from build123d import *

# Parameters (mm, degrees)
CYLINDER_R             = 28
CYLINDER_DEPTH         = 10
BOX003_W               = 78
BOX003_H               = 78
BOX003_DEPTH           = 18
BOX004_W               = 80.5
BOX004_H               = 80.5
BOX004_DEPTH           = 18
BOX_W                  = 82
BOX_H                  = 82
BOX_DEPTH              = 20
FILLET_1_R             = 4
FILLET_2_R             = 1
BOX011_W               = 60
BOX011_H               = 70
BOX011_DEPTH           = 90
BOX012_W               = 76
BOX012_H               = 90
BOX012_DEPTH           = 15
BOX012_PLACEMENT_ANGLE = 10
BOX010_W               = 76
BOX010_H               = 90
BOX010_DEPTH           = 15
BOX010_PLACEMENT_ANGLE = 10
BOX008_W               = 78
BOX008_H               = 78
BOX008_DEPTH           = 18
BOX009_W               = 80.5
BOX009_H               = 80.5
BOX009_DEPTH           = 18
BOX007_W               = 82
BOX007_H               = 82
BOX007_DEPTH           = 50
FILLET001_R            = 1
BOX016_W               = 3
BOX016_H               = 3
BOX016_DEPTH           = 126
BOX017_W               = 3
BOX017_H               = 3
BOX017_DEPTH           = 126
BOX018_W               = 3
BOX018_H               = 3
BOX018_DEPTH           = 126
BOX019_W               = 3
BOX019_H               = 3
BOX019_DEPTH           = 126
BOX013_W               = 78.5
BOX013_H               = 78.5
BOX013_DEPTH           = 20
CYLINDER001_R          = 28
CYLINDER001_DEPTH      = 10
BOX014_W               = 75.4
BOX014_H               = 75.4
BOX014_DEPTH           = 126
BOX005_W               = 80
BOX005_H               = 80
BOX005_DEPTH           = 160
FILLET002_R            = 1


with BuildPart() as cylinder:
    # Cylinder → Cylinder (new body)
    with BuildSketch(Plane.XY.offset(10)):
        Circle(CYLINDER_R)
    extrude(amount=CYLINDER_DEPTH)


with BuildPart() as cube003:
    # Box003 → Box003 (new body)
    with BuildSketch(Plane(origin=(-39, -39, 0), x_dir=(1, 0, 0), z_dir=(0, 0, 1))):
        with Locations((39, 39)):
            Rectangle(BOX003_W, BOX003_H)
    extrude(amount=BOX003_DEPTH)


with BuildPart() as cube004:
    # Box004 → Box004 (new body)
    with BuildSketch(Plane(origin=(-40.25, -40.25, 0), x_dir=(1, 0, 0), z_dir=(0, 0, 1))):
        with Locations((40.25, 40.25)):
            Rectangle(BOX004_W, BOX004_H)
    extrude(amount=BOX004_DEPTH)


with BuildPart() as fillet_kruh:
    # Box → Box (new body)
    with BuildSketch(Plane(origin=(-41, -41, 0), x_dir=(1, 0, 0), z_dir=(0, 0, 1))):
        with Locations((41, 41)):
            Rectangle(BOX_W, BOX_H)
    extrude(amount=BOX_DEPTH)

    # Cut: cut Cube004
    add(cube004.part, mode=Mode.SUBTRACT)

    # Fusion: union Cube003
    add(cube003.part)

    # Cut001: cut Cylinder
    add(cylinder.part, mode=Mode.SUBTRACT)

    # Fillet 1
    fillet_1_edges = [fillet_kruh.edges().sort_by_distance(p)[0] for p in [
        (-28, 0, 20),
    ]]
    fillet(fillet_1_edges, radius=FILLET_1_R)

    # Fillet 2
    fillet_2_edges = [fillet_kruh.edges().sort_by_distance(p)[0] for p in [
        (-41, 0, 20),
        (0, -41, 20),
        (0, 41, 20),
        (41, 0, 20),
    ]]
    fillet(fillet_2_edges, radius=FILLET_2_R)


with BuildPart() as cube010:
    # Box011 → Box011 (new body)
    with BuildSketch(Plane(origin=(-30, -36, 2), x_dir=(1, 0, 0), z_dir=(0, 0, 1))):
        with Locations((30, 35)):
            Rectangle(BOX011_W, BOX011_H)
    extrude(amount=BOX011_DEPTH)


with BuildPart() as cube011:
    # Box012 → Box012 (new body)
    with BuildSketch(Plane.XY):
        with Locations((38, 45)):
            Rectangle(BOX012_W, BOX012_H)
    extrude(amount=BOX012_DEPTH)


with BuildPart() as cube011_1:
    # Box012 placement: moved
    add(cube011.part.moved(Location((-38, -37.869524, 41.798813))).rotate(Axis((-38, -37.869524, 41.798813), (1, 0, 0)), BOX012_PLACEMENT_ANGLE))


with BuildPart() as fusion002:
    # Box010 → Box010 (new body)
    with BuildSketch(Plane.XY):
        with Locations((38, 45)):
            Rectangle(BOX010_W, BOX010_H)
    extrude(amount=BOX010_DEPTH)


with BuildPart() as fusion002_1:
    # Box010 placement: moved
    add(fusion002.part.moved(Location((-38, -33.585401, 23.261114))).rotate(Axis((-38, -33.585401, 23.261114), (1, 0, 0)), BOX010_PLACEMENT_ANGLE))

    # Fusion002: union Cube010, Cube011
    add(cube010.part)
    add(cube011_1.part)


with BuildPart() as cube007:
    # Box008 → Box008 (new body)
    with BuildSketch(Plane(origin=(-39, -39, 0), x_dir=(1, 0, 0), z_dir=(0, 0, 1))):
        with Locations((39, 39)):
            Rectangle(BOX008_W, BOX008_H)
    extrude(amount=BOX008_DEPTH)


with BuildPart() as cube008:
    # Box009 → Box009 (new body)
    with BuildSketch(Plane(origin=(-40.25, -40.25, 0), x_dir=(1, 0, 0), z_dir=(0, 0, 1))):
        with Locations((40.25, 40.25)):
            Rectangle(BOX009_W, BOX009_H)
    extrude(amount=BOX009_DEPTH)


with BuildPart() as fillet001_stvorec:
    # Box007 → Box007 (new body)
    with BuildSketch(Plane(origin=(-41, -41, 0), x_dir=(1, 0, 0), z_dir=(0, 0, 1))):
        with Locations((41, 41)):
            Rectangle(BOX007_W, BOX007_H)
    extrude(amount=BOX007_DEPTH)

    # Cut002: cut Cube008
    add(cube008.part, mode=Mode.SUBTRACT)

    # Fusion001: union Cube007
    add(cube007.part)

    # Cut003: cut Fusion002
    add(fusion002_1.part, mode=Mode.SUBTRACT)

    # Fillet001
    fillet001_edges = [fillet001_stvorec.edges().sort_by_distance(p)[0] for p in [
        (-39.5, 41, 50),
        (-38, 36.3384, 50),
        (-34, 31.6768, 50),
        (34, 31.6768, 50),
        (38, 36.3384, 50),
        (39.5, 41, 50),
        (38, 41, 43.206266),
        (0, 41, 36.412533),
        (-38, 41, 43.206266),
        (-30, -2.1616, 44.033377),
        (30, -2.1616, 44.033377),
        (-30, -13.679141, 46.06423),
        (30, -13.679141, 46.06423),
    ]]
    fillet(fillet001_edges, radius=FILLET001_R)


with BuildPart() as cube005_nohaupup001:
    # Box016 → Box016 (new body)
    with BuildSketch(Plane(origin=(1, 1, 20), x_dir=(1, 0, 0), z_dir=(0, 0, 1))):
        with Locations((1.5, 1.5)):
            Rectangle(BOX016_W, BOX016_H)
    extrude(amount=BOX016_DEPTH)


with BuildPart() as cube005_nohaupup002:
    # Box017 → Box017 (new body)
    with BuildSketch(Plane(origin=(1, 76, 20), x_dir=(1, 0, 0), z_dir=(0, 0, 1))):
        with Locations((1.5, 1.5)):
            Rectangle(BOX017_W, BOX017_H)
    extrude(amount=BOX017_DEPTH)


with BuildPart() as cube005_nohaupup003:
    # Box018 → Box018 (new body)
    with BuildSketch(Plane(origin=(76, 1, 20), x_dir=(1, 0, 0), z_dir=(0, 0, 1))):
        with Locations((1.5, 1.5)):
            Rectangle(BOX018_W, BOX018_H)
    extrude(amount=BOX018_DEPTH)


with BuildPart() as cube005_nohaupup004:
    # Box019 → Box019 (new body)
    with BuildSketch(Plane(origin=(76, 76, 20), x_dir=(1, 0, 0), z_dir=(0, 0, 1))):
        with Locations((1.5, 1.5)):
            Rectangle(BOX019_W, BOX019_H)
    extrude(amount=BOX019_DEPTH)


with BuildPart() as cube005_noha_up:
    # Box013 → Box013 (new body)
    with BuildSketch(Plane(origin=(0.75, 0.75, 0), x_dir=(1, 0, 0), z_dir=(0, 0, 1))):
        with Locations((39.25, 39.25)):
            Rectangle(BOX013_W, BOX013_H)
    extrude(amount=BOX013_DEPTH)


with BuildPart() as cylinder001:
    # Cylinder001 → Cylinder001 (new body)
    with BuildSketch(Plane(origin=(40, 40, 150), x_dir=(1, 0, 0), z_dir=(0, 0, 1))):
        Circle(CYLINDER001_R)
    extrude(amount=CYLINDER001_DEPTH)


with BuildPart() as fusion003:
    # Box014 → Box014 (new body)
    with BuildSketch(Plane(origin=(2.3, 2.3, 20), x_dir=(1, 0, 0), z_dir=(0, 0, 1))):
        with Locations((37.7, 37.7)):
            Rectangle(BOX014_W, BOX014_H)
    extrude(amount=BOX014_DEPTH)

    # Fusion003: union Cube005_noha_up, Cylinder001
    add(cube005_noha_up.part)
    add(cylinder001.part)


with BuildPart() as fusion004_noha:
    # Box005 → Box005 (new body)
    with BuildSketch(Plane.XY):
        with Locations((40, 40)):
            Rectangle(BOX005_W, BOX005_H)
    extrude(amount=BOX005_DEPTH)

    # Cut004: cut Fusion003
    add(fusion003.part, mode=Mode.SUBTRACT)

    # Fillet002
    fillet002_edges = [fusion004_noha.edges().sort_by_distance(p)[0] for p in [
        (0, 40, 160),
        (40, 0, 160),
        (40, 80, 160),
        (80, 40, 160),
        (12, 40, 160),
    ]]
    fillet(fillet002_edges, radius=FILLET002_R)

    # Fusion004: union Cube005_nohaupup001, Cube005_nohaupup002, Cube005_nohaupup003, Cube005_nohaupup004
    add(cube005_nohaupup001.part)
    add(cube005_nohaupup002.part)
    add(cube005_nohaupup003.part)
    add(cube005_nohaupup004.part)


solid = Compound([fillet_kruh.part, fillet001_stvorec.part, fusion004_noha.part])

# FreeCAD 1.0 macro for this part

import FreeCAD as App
import Part
import Sketcher
from FreeCAD import Vector
Q = App.Units.Quantity


def edges_at(feature, points):
    """Names of the edges that pass closest to the given points."""
    edges = feature.Shape.Edges
    near = lambda p: min(range(len(edges)), key=lambda i: edges[i].distToShape(Part.Vertex(*p))[0])
    return sorted({f"Edge{near(p) + 1}" for p in points})

doc = App.newDocument("Part")
body = doc.addObject("PartDesign::Body", "Body")

# Sketch on XY plane
sketch1 = body.newObject("Sketcher::SketchObject", "Sketch")
sketch1.AttachmentSupport = (doc.getObject("XY_Plane"), [""])
sketch1.MapMode = "FlatFace"
sketch1.AttachmentOffset = App.Placement(Vector(0, 0, 10), App.Rotation())
sketch1.addGeometry(Part.Circle(Vector(0, 0, 0), Vector(0, 0, 1), 28), False)
sketch1.addConstraint([
    Sketcher.Constraint("Coincident", 0, 3, -1, 1),
    Sketcher.Constraint("Diameter", 0, Q("56 mm")),
])
pad1 = body.newObject("PartDesign::Pad", "Pad")
pad1.Profile = sketch1
pad1.Length = 10
body2 = doc.addObject("PartDesign::Body", "Body001")

# Sketch on XY plane
sketch2 = body2.newObject("Sketcher::SketchObject", "Sketch001")
sketch2.AttachmentSupport = (doc.getObject("XY_Plane001"), [""])
sketch2.MapMode = "FlatFace"
sketch2.addGeometry([
    Part.LineSegment(Vector(-39, 39, 0), Vector(-39, -39, 0)),
    Part.LineSegment(Vector(-39, -39, 0), Vector(39, -39, 0)),
    Part.LineSegment(Vector(39, -39, 0), Vector(39, 39, 0)),
    Part.LineSegment(Vector(39, 39, 0), Vector(-39, 39, 0)),
], False)
sketch2.addConstraint([
    Sketcher.Constraint("Coincident", 0, 2, 1, 1),
    Sketcher.Constraint("Coincident", 1, 2, 2, 1),
    Sketcher.Constraint("Coincident", 2, 2, 3, 1),
    Sketcher.Constraint("Coincident", 3, 2, 0, 1),
    Sketcher.Constraint("Vertical", 0),
    Sketcher.Constraint("Horizontal", 1),
    Sketcher.Constraint("Vertical", 2),
    Sketcher.Constraint("Horizontal", 3),
    Sketcher.Constraint("Symmetric", 0, 2, 2, 2, -1, 1),
    Sketcher.Constraint("Equal", 3, 0),
    Sketcher.Constraint("DistanceX", 1, 1, 1, 2, Q("78 mm")),
])
pad2 = body2.newObject("PartDesign::Pad", "Pad001")
pad2.Profile = sketch2
pad2.Length = 18
body3 = doc.addObject("PartDesign::Body", "Body002")

# Sketch on XY plane
sketch3 = body3.newObject("Sketcher::SketchObject", "Sketch002")
sketch3.AttachmentSupport = (doc.getObject("XY_Plane002"), [""])
sketch3.MapMode = "FlatFace"
sketch3.addGeometry([
    Part.LineSegment(Vector(-40.25, 40.25, 0), Vector(-40.25, -40.25, 0)),
    Part.LineSegment(Vector(-40.25, -40.25, 0), Vector(40.25, -40.25, 0)),
    Part.LineSegment(Vector(40.25, -40.25, 0), Vector(40.25, 40.25, 0)),
    Part.LineSegment(Vector(40.25, 40.25, 0), Vector(-40.25, 40.25, 0)),
], False)
sketch3.addConstraint([
    Sketcher.Constraint("Coincident", 0, 2, 1, 1),
    Sketcher.Constraint("Coincident", 1, 2, 2, 1),
    Sketcher.Constraint("Coincident", 2, 2, 3, 1),
    Sketcher.Constraint("Coincident", 3, 2, 0, 1),
    Sketcher.Constraint("Vertical", 0),
    Sketcher.Constraint("Horizontal", 1),
    Sketcher.Constraint("Vertical", 2),
    Sketcher.Constraint("Horizontal", 3),
    Sketcher.Constraint("Symmetric", 0, 2, 2, 2, -1, 1),
    Sketcher.Constraint("Equal", 3, 0),
    Sketcher.Constraint("DistanceX", 1, 1, 1, 2, Q("80.5 mm")),
])
pad3 = body3.newObject("PartDesign::Pad", "Pad002")
pad3.Profile = sketch3
pad3.Length = 18
body4 = doc.addObject("PartDesign::Body", "Body003")

# Sketch on XY plane
sketch4 = body4.newObject("Sketcher::SketchObject", "Sketch003")
sketch4.AttachmentSupport = (doc.getObject("XY_Plane003"), [""])
sketch4.MapMode = "FlatFace"
sketch4.addGeometry([
    Part.LineSegment(Vector(-41, 41, 0), Vector(-41, -41, 0)),
    Part.LineSegment(Vector(-41, -41, 0), Vector(41, -41, 0)),
    Part.LineSegment(Vector(41, -41, 0), Vector(41, 41, 0)),
    Part.LineSegment(Vector(41, 41, 0), Vector(-41, 41, 0)),
], False)
sketch4.addConstraint([
    Sketcher.Constraint("Coincident", 0, 2, 1, 1),
    Sketcher.Constraint("Coincident", 1, 2, 2, 1),
    Sketcher.Constraint("Coincident", 2, 2, 3, 1),
    Sketcher.Constraint("Coincident", 3, 2, 0, 1),
    Sketcher.Constraint("Vertical", 0),
    Sketcher.Constraint("Horizontal", 1),
    Sketcher.Constraint("Vertical", 2),
    Sketcher.Constraint("Horizontal", 3),
    Sketcher.Constraint("Symmetric", 0, 2, 2, 2, -1, 1),
    Sketcher.Constraint("Equal", 3, 0),
    Sketcher.Constraint("DistanceX", 1, 1, 1, 2, Q("82 mm")),
])
pad4 = body4.newObject("PartDesign::Pad", "Pad003")
pad4.Profile = sketch4
pad4.Length = 20
doc.recompute()

boolean = body4.newObject("PartDesign::Boolean", "Boolean")
boolean.Type = "Cut"
boolean.addObjects([body3])
doc.recompute()

boolean2 = body4.newObject("PartDesign::Boolean", "Boolean001")
boolean2.Type = "Fuse"
boolean2.addObjects([body2])
doc.recompute()

boolean3 = body4.newObject("PartDesign::Boolean", "Boolean002")
boolean3.Type = "Cut"
boolean3.addObjects([body])
doc.recompute()

fillet = body4.newObject("PartDesign::Fillet", "Fillet")
fillet.Base = (boolean3, edges_at(boolean3, [(-28, 0, 20)]))
fillet.Radius = 4
doc.recompute()

fillet2 = body4.newObject("PartDesign::Fillet", "Fillet001")
fillet2.Base = (fillet, edges_at(fillet, [
    (-41, 0, 20),
    (0, -41, 20),
    (0, 41, 20),
    (41, 0, 20),
]))
fillet2.Radius = 1
body5 = doc.addObject("PartDesign::Body", "Body004")

# Sketch on XY plane
sketch5 = body5.newObject("Sketcher::SketchObject", "Sketch004")
sketch5.AttachmentSupport = (doc.getObject("XY_Plane004"), [""])
sketch5.MapMode = "FlatFace"
sketch5.AttachmentOffset = App.Placement(Vector(0, 0, 2), App.Rotation())
sketch5.addGeometry([
    Part.LineSegment(Vector(-30, 34, 0), Vector(-30, -36, 0)),
    Part.LineSegment(Vector(-30, -36, 0), Vector(30, -36, 0)),
    Part.LineSegment(Vector(30, -36, 0), Vector(30, 34, 0)),
    Part.LineSegment(Vector(30, 34, 0), Vector(-30, 34, 0)),
], False)
sketch5.addConstraint([
    Sketcher.Constraint("Coincident", 0, 2, 1, 1),
    Sketcher.Constraint("Coincident", 1, 2, 2, 1),
    Sketcher.Constraint("Coincident", 2, 2, 3, 1),
    Sketcher.Constraint("Coincident", 3, 2, 0, 1),
    Sketcher.Constraint("Vertical", 0),
    Sketcher.Constraint("Horizontal", 1),
    Sketcher.Constraint("Vertical", 2),
    Sketcher.Constraint("Horizontal", 3),
    Sketcher.Constraint("DistanceX", 1, 1, 1, 2, Q("60 mm")),
    Sketcher.Constraint("DistanceY", 0, 2, 0, 1, Q("70 mm")),
    Sketcher.Constraint("DistanceX", 0, 2, -1, 1, Q("30 mm")),
    Sketcher.Constraint("DistanceY", 0, 2, -1, 1, Q("36 mm")),
])
pad5 = body5.newObject("PartDesign::Pad", "Pad004")
pad5.Profile = sketch5
pad5.Length = 90
body6 = doc.addObject("PartDesign::Body", "Body005")

# Sketch on XY plane
sketch6 = body6.newObject("Sketcher::SketchObject", "Sketch005")
sketch6.AttachmentSupport = (doc.getObject("XY_Plane005"), [""])
sketch6.MapMode = "FlatFace"
sketch6.addGeometry([
    Part.LineSegment(Vector(0, 90, 0), Vector(0, 0, 0)),
    Part.LineSegment(Vector(0, 0, 0), Vector(76, 0, 0)),
    Part.LineSegment(Vector(76, 0, 0), Vector(76, 90, 0)),
    Part.LineSegment(Vector(76, 90, 0), Vector(0, 90, 0)),
], False)
sketch6.addConstraint([
    Sketcher.Constraint("Coincident", 0, 2, 1, 1),
    Sketcher.Constraint("Coincident", 1, 2, 2, 1),
    Sketcher.Constraint("Coincident", 2, 2, 3, 1),
    Sketcher.Constraint("Coincident", 3, 2, 0, 1),
    Sketcher.Constraint("Vertical", 0),
    Sketcher.Constraint("Horizontal", 1),
    Sketcher.Constraint("Vertical", 2),
    Sketcher.Constraint("Horizontal", 3),
    Sketcher.Constraint("Coincident", 0, 2, -1, 1),
    Sketcher.Constraint("DistanceX", 1, 1, 1, 2, Q("76 mm")),
    Sketcher.Constraint("DistanceY", 0, 2, 0, 1, Q("90 mm")),
])
pad6 = body6.newObject("PartDesign::Pad", "Pad005")
pad6.Profile = sketch6
pad6.Length = 15
body7 = doc.addObject("PartDesign::Body", "Body006")
doc.recompute()

body6.Placement = App.Placement(Vector(-38, -37.869524, 41.798813), App.Rotation(Vector(1, 0, 0), 10))
boolean4 = body7.newObject("PartDesign::Boolean", "Boolean003")
boolean4.Type = "Fuse"
boolean4.addObjects([body6])
body8 = doc.addObject("PartDesign::Body", "Body007")

# Sketch on XY plane
sketch7 = body8.newObject("Sketcher::SketchObject", "Sketch006")
sketch7.AttachmentSupport = (doc.getObject("XY_Plane007"), [""])
sketch7.MapMode = "FlatFace"
sketch7.addGeometry([
    Part.LineSegment(Vector(0, 90, 0), Vector(0, 0, 0)),
    Part.LineSegment(Vector(0, 0, 0), Vector(76, 0, 0)),
    Part.LineSegment(Vector(76, 0, 0), Vector(76, 90, 0)),
    Part.LineSegment(Vector(76, 90, 0), Vector(0, 90, 0)),
], False)
sketch7.addConstraint([
    Sketcher.Constraint("Coincident", 0, 2, 1, 1),
    Sketcher.Constraint("Coincident", 1, 2, 2, 1),
    Sketcher.Constraint("Coincident", 2, 2, 3, 1),
    Sketcher.Constraint("Coincident", 3, 2, 0, 1),
    Sketcher.Constraint("Vertical", 0),
    Sketcher.Constraint("Horizontal", 1),
    Sketcher.Constraint("Vertical", 2),
    Sketcher.Constraint("Horizontal", 3),
    Sketcher.Constraint("Coincident", 0, 2, -1, 1),
    Sketcher.Constraint("DistanceX", 1, 1, 1, 2, Q("76 mm")),
    Sketcher.Constraint("DistanceY", 0, 2, 0, 1, Q("90 mm")),
])
pad7 = body8.newObject("PartDesign::Pad", "Pad006")
pad7.Profile = sketch7
pad7.Length = 15
body9 = doc.addObject("PartDesign::Body", "Body008")
doc.recompute()

body8.Placement = App.Placement(Vector(-38, -33.585401, 23.261114), App.Rotation(Vector(1, 0, 0), 10))
boolean5 = body9.newObject("PartDesign::Boolean", "Boolean004")
boolean5.Type = "Fuse"
boolean5.addObjects([body8])
doc.recompute()

boolean6 = body9.newObject("PartDesign::Boolean", "Boolean005")
boolean6.Type = "Fuse"
boolean6.addObjects([body5])
doc.recompute()

boolean7 = body9.newObject("PartDesign::Boolean", "Boolean006")
boolean7.Type = "Fuse"
boolean7.addObjects([body7])
body10 = doc.addObject("PartDesign::Body", "Body009")

# Sketch on XY plane
sketch8 = body10.newObject("Sketcher::SketchObject", "Sketch007")
sketch8.AttachmentSupport = (doc.getObject("XY_Plane009"), [""])
sketch8.MapMode = "FlatFace"
sketch8.addGeometry([
    Part.LineSegment(Vector(-39, 39, 0), Vector(-39, -39, 0)),
    Part.LineSegment(Vector(-39, -39, 0), Vector(39, -39, 0)),
    Part.LineSegment(Vector(39, -39, 0), Vector(39, 39, 0)),
    Part.LineSegment(Vector(39, 39, 0), Vector(-39, 39, 0)),
], False)
sketch8.addConstraint([
    Sketcher.Constraint("Coincident", 0, 2, 1, 1),
    Sketcher.Constraint("Coincident", 1, 2, 2, 1),
    Sketcher.Constraint("Coincident", 2, 2, 3, 1),
    Sketcher.Constraint("Coincident", 3, 2, 0, 1),
    Sketcher.Constraint("Vertical", 0),
    Sketcher.Constraint("Horizontal", 1),
    Sketcher.Constraint("Vertical", 2),
    Sketcher.Constraint("Horizontal", 3),
    Sketcher.Constraint("Symmetric", 0, 2, 2, 2, -1, 1),
    Sketcher.Constraint("Equal", 3, 0),
    Sketcher.Constraint("DistanceX", 1, 1, 1, 2, Q("78 mm")),
])
pad8 = body10.newObject("PartDesign::Pad", "Pad007")
pad8.Profile = sketch8
pad8.Length = 18
body11 = doc.addObject("PartDesign::Body", "Body010")

# Sketch on XY plane
sketch9 = body11.newObject("Sketcher::SketchObject", "Sketch008")
sketch9.AttachmentSupport = (doc.getObject("XY_Plane010"), [""])
sketch9.MapMode = "FlatFace"
sketch9.addGeometry([
    Part.LineSegment(Vector(-40.25, 40.25, 0), Vector(-40.25, -40.25, 0)),
    Part.LineSegment(Vector(-40.25, -40.25, 0), Vector(40.25, -40.25, 0)),
    Part.LineSegment(Vector(40.25, -40.25, 0), Vector(40.25, 40.25, 0)),
    Part.LineSegment(Vector(40.25, 40.25, 0), Vector(-40.25, 40.25, 0)),
], False)
sketch9.addConstraint([
    Sketcher.Constraint("Coincident", 0, 2, 1, 1),
    Sketcher.Constraint("Coincident", 1, 2, 2, 1),
    Sketcher.Constraint("Coincident", 2, 2, 3, 1),
    Sketcher.Constraint("Coincident", 3, 2, 0, 1),
    Sketcher.Constraint("Vertical", 0),
    Sketcher.Constraint("Horizontal", 1),
    Sketcher.Constraint("Vertical", 2),
    Sketcher.Constraint("Horizontal", 3),
    Sketcher.Constraint("Symmetric", 0, 2, 2, 2, -1, 1),
    Sketcher.Constraint("Equal", 3, 0),
    Sketcher.Constraint("DistanceX", 1, 1, 1, 2, Q("80.5 mm")),
])
pad9 = body11.newObject("PartDesign::Pad", "Pad008")
pad9.Profile = sketch9
pad9.Length = 18
body12 = doc.addObject("PartDesign::Body", "Body011")

# Sketch on XY plane
sketch10 = body12.newObject("Sketcher::SketchObject", "Sketch009")
sketch10.AttachmentSupport = (doc.getObject("XY_Plane011"), [""])
sketch10.MapMode = "FlatFace"
sketch10.addGeometry([
    Part.LineSegment(Vector(-41, 41, 0), Vector(-41, -41, 0)),
    Part.LineSegment(Vector(-41, -41, 0), Vector(41, -41, 0)),
    Part.LineSegment(Vector(41, -41, 0), Vector(41, 41, 0)),
    Part.LineSegment(Vector(41, 41, 0), Vector(-41, 41, 0)),
], False)
sketch10.addConstraint([
    Sketcher.Constraint("Coincident", 0, 2, 1, 1),
    Sketcher.Constraint("Coincident", 1, 2, 2, 1),
    Sketcher.Constraint("Coincident", 2, 2, 3, 1),
    Sketcher.Constraint("Coincident", 3, 2, 0, 1),
    Sketcher.Constraint("Vertical", 0),
    Sketcher.Constraint("Horizontal", 1),
    Sketcher.Constraint("Vertical", 2),
    Sketcher.Constraint("Horizontal", 3),
    Sketcher.Constraint("Symmetric", 0, 2, 2, 2, -1, 1),
    Sketcher.Constraint("Equal", 3, 0),
    Sketcher.Constraint("DistanceX", 1, 1, 1, 2, Q("82 mm")),
])
pad10 = body12.newObject("PartDesign::Pad", "Pad009")
pad10.Profile = sketch10
pad10.Length = 50
doc.recompute()

boolean8 = body12.newObject("PartDesign::Boolean", "Boolean007")
boolean8.Type = "Cut"
boolean8.addObjects([body11])
doc.recompute()

boolean9 = body12.newObject("PartDesign::Boolean", "Boolean008")
boolean9.Type = "Fuse"
boolean9.addObjects([body10])
doc.recompute()

boolean10 = body12.newObject("PartDesign::Boolean", "Boolean009")
boolean10.Type = "Cut"
boolean10.addObjects([body9])
doc.recompute()

fillet3 = body12.newObject("PartDesign::Fillet", "Fillet002")
fillet3.Base = (boolean10, edges_at(boolean10, [
    (-39.5, 41, 50),
    (-38, 36.338, 50),
    (-34, 31.677, 50),
    (34, 31.677, 50),
    (38, 36.338, 50),
    (39.5, 41, 50),
    (38, 41, 43.206),
    (0, 41, 36.413),
    (-38, 41, 43.206),
    (-30, -2.162, 44.033),
    (30, -2.162, 44.033),
    (-30, -13.679, 46.064),
    (30, -13.679, 46.064),
]))
fillet3.Radius = 1
body13 = doc.addObject("PartDesign::Body", "Body012")

# Sketch on XY plane
sketch11 = body13.newObject("Sketcher::SketchObject", "Sketch010")
sketch11.AttachmentSupport = (doc.getObject("XY_Plane012"), [""])
sketch11.MapMode = "FlatFace"
sketch11.AttachmentOffset = App.Placement(Vector(0, 0, 20), App.Rotation())
sketch11.addGeometry([
    Part.LineSegment(Vector(1, 4, 0), Vector(1, 1, 0)),
    Part.LineSegment(Vector(1, 1, 0), Vector(4, 1, 0)),
    Part.LineSegment(Vector(4, 1, 0), Vector(4, 4, 0)),
    Part.LineSegment(Vector(4, 4, 0), Vector(1, 4, 0)),
], False)
sketch11.addConstraint([
    Sketcher.Constraint("Coincident", 0, 2, 1, 1),
    Sketcher.Constraint("Coincident", 1, 2, 2, 1),
    Sketcher.Constraint("Coincident", 2, 2, 3, 1),
    Sketcher.Constraint("Coincident", 3, 2, 0, 1),
    Sketcher.Constraint("Vertical", 0),
    Sketcher.Constraint("Horizontal", 1),
    Sketcher.Constraint("Vertical", 2),
    Sketcher.Constraint("Horizontal", 3),
    Sketcher.Constraint("Equal", 3, 0),
    Sketcher.Constraint("DistanceX", 1, 1, 1, 2, Q("3 mm")),
    Sketcher.Constraint("DistanceX", -1, 1, 0, 2, Q("1 mm")),
    Sketcher.Constraint("DistanceY", -1, 1, 0, 2, Q("1 mm")),
])
pad11 = body13.newObject("PartDesign::Pad", "Pad010")
pad11.Profile = sketch11
pad11.Length = 126
body14 = doc.addObject("PartDesign::Body", "Body013")

# Sketch on XY plane
sketch12 = body14.newObject("Sketcher::SketchObject", "Sketch011")
sketch12.AttachmentSupport = (doc.getObject("XY_Plane013"), [""])
sketch12.MapMode = "FlatFace"
sketch12.AttachmentOffset = App.Placement(Vector(0, 0, 20), App.Rotation())
sketch12.addGeometry([
    Part.LineSegment(Vector(1, 79, 0), Vector(1, 76, 0)),
    Part.LineSegment(Vector(1, 76, 0), Vector(4, 76, 0)),
    Part.LineSegment(Vector(4, 76, 0), Vector(4, 79, 0)),
    Part.LineSegment(Vector(4, 79, 0), Vector(1, 79, 0)),
], False)
sketch12.addConstraint([
    Sketcher.Constraint("Coincident", 0, 2, 1, 1),
    Sketcher.Constraint("Coincident", 1, 2, 2, 1),
    Sketcher.Constraint("Coincident", 2, 2, 3, 1),
    Sketcher.Constraint("Coincident", 3, 2, 0, 1),
    Sketcher.Constraint("Vertical", 0),
    Sketcher.Constraint("Horizontal", 1),
    Sketcher.Constraint("Vertical", 2),
    Sketcher.Constraint("Horizontal", 3),
    Sketcher.Constraint("Equal", 3, 0),
    Sketcher.Constraint("DistanceX", 1, 1, 1, 2, Q("3 mm")),
    Sketcher.Constraint("DistanceX", -1, 1, 0, 2, Q("1 mm")),
    Sketcher.Constraint("DistanceY", -1, 1, 0, 2, Q("76 mm")),
])
pad12 = body14.newObject("PartDesign::Pad", "Pad011")
pad12.Profile = sketch12
pad12.Length = 126
body15 = doc.addObject("PartDesign::Body", "Body014")

# Sketch on XY plane
sketch13 = body15.newObject("Sketcher::SketchObject", "Sketch012")
sketch13.AttachmentSupport = (doc.getObject("XY_Plane014"), [""])
sketch13.MapMode = "FlatFace"
sketch13.AttachmentOffset = App.Placement(Vector(0, 0, 20), App.Rotation())
sketch13.addGeometry([
    Part.LineSegment(Vector(76, 4, 0), Vector(76, 1, 0)),
    Part.LineSegment(Vector(76, 1, 0), Vector(79, 1, 0)),
    Part.LineSegment(Vector(79, 1, 0), Vector(79, 4, 0)),
    Part.LineSegment(Vector(79, 4, 0), Vector(76, 4, 0)),
], False)
sketch13.addConstraint([
    Sketcher.Constraint("Coincident", 0, 2, 1, 1),
    Sketcher.Constraint("Coincident", 1, 2, 2, 1),
    Sketcher.Constraint("Coincident", 2, 2, 3, 1),
    Sketcher.Constraint("Coincident", 3, 2, 0, 1),
    Sketcher.Constraint("Vertical", 0),
    Sketcher.Constraint("Horizontal", 1),
    Sketcher.Constraint("Vertical", 2),
    Sketcher.Constraint("Horizontal", 3),
    Sketcher.Constraint("Equal", 3, 0),
    Sketcher.Constraint("DistanceX", 1, 1, 1, 2, Q("3 mm")),
    Sketcher.Constraint("DistanceX", -1, 1, 0, 2, Q("76 mm")),
    Sketcher.Constraint("DistanceY", -1, 1, 0, 2, Q("1 mm")),
])
pad13 = body15.newObject("PartDesign::Pad", "Pad012")
pad13.Profile = sketch13
pad13.Length = 126
body16 = doc.addObject("PartDesign::Body", "Body015")

# Sketch on XY plane
sketch14 = body16.newObject("Sketcher::SketchObject", "Sketch013")
sketch14.AttachmentSupport = (doc.getObject("XY_Plane015"), [""])
sketch14.MapMode = "FlatFace"
sketch14.AttachmentOffset = App.Placement(Vector(0, 0, 20), App.Rotation())
sketch14.addGeometry([
    Part.LineSegment(Vector(76, 79, 0), Vector(76, 76, 0)),
    Part.LineSegment(Vector(76, 76, 0), Vector(79, 76, 0)),
    Part.LineSegment(Vector(79, 76, 0), Vector(79, 79, 0)),
    Part.LineSegment(Vector(79, 79, 0), Vector(76, 79, 0)),
], False)
sketch14.addConstraint([
    Sketcher.Constraint("Coincident", 0, 2, 1, 1),
    Sketcher.Constraint("Coincident", 1, 2, 2, 1),
    Sketcher.Constraint("Coincident", 2, 2, 3, 1),
    Sketcher.Constraint("Coincident", 3, 2, 0, 1),
    Sketcher.Constraint("Vertical", 0),
    Sketcher.Constraint("Horizontal", 1),
    Sketcher.Constraint("Vertical", 2),
    Sketcher.Constraint("Horizontal", 3),
    Sketcher.Constraint("Equal", 3, 0),
    Sketcher.Constraint("DistanceX", 1, 1, 1, 2, Q("3 mm")),
    Sketcher.Constraint("DistanceX", -1, 1, 0, 2, Q("76 mm")),
    Sketcher.Constraint("DistanceY", -1, 1, 0, 2, Q("76 mm")),
])
pad14 = body16.newObject("PartDesign::Pad", "Pad013")
pad14.Profile = sketch14
pad14.Length = 126
body17 = doc.addObject("PartDesign::Body", "Body016")

# Sketch on XY plane
sketch15 = body17.newObject("Sketcher::SketchObject", "Sketch014")
sketch15.AttachmentSupport = (doc.getObject("XY_Plane016"), [""])
sketch15.MapMode = "FlatFace"
sketch15.addGeometry([
    Part.LineSegment(Vector(0.75, 79.25, 0), Vector(0.75, 0.75, 0)),
    Part.LineSegment(Vector(0.75, 0.75, 0), Vector(79.25, 0.75, 0)),
    Part.LineSegment(Vector(79.25, 0.75, 0), Vector(79.25, 79.25, 0)),
    Part.LineSegment(Vector(79.25, 79.25, 0), Vector(0.75, 79.25, 0)),
], False)
sketch15.addConstraint([
    Sketcher.Constraint("Coincident", 0, 2, 1, 1),
    Sketcher.Constraint("Coincident", 1, 2, 2, 1),
    Sketcher.Constraint("Coincident", 2, 2, 3, 1),
    Sketcher.Constraint("Coincident", 3, 2, 0, 1),
    Sketcher.Constraint("Vertical", 0),
    Sketcher.Constraint("Horizontal", 1),
    Sketcher.Constraint("Vertical", 2),
    Sketcher.Constraint("Horizontal", 3),
    Sketcher.Constraint("Equal", 3, 0),
    Sketcher.Constraint("DistanceX", 1, 1, 1, 2, Q("78.5 mm")),
    Sketcher.Constraint("DistanceX", -1, 1, 0, 2, Q("0.75 mm")),
    Sketcher.Constraint("DistanceY", -1, 1, 0, 2, Q("0.75 mm")),
])
pad15 = body17.newObject("PartDesign::Pad", "Pad014")
pad15.Profile = sketch15
pad15.Length = 20
body18 = doc.addObject("PartDesign::Body", "Body017")

# Sketch on XY plane
sketch16 = body18.newObject("Sketcher::SketchObject", "Sketch015")
sketch16.AttachmentSupport = (doc.getObject("XY_Plane017"), [""])
sketch16.MapMode = "FlatFace"
sketch16.AttachmentOffset = App.Placement(Vector(0, 0, 150), App.Rotation())
sketch16.addGeometry(Part.Circle(Vector(40, 40, 0), Vector(0, 0, 1), 28), False)
sketch16.addConstraint([
    Sketcher.Constraint("Diameter", 0, Q("56 mm")),
    Sketcher.Constraint("DistanceX", -1, 1, 0, 3, Q("40 mm")),
    Sketcher.Constraint("DistanceY", -1, 1, 0, 3, Q("40 mm")),
])
pad16 = body18.newObject("PartDesign::Pad", "Pad015")
pad16.Profile = sketch16
pad16.Length = 10
body19 = doc.addObject("PartDesign::Body", "Body018")
body19.AllowCompound = True

# Sketch on XY plane
sketch17 = body19.newObject("Sketcher::SketchObject", "Sketch016")
sketch17.AttachmentSupport = (doc.getObject("XY_Plane018"), [""])
sketch17.MapMode = "FlatFace"
sketch17.AttachmentOffset = App.Placement(Vector(0, 0, 20), App.Rotation())
sketch17.addGeometry([
    Part.LineSegment(Vector(2.3, 77.7, 0), Vector(2.3, 2.3, 0)),
    Part.LineSegment(Vector(2.3, 2.3, 0), Vector(77.7, 2.3, 0)),
    Part.LineSegment(Vector(77.7, 2.3, 0), Vector(77.7, 77.7, 0)),
    Part.LineSegment(Vector(77.7, 77.7, 0), Vector(2.3, 77.7, 0)),
], False)
sketch17.addConstraint([
    Sketcher.Constraint("Coincident", 0, 2, 1, 1),
    Sketcher.Constraint("Coincident", 1, 2, 2, 1),
    Sketcher.Constraint("Coincident", 2, 2, 3, 1),
    Sketcher.Constraint("Coincident", 3, 2, 0, 1),
    Sketcher.Constraint("Vertical", 0),
    Sketcher.Constraint("Horizontal", 1),
    Sketcher.Constraint("Vertical", 2),
    Sketcher.Constraint("Horizontal", 3),
    Sketcher.Constraint("Equal", 3, 0),
    Sketcher.Constraint("DistanceX", 1, 1, 1, 2, Q("75.4 mm")),
    Sketcher.Constraint("DistanceX", -1, 1, 0, 2, Q("2.3 mm")),
    Sketcher.Constraint("DistanceY", -1, 1, 0, 2, Q("2.3 mm")),
])
pad17 = body19.newObject("PartDesign::Pad", "Pad016")
pad17.Profile = sketch17
pad17.Length = 126
doc.recompute()

boolean11 = body19.newObject("PartDesign::Boolean", "Boolean010")
boolean11.Type = "Fuse"
boolean11.addObjects([body17])
doc.recompute()

boolean12 = body19.newObject("PartDesign::Boolean", "Boolean011")
boolean12.Type = "Fuse"
boolean12.addObjects([body18])
body20 = doc.addObject("PartDesign::Body", "Body019")

# Sketch on XY plane
sketch18 = body20.newObject("Sketcher::SketchObject", "Sketch017")
sketch18.AttachmentSupport = (doc.getObject("XY_Plane019"), [""])
sketch18.MapMode = "FlatFace"
sketch18.addGeometry([
    Part.LineSegment(Vector(0, 80, 0), Vector(0, 0, 0)),
    Part.LineSegment(Vector(0, 0, 0), Vector(80, 0, 0)),
    Part.LineSegment(Vector(80, 0, 0), Vector(80, 80, 0)),
    Part.LineSegment(Vector(80, 80, 0), Vector(0, 80, 0)),
], False)
sketch18.addConstraint([
    Sketcher.Constraint("Coincident", 0, 2, 1, 1),
    Sketcher.Constraint("Coincident", 1, 2, 2, 1),
    Sketcher.Constraint("Coincident", 2, 2, 3, 1),
    Sketcher.Constraint("Coincident", 3, 2, 0, 1),
    Sketcher.Constraint("Vertical", 0),
    Sketcher.Constraint("Horizontal", 1),
    Sketcher.Constraint("Vertical", 2),
    Sketcher.Constraint("Horizontal", 3),
    Sketcher.Constraint("Coincident", 0, 2, -1, 1),
    Sketcher.Constraint("Equal", 3, 0),
    Sketcher.Constraint("DistanceX", 1, 1, 1, 2, Q("80 mm")),
])
pad18 = body20.newObject("PartDesign::Pad", "Pad017")
pad18.Profile = sketch18
pad18.Length = 160
doc.recompute()

boolean13 = body20.newObject("PartDesign::Boolean", "Boolean012")
boolean13.Type = "Cut"
boolean13.addObjects([body19])
doc.recompute()

fillet4 = body20.newObject("PartDesign::Fillet", "Fillet003")
fillet4.Base = (boolean13, edges_at(boolean13, [
    (0, 40, 160),
    (40, 0, 160),
    (40, 80, 160),
    (80, 40, 160),
    (12, 40, 160),
]))
fillet4.Radius = 1
doc.recompute()

boolean14 = body20.newObject("PartDesign::Boolean", "Boolean013")
boolean14.Type = "Fuse"
boolean14.addObjects([body13])
doc.recompute()

boolean15 = body20.newObject("PartDesign::Boolean", "Boolean014")
boolean15.Type = "Fuse"
boolean15.addObjects([body14])
doc.recompute()

boolean16 = body20.newObject("PartDesign::Boolean", "Boolean015")
boolean16.Type = "Fuse"
boolean16.addObjects([body15])
doc.recompute()

boolean17 = body20.newObject("PartDesign::Boolean", "Boolean016")
boolean17.Type = "Fuse"
boolean17.addObjects([body16])

doc.recompute()
